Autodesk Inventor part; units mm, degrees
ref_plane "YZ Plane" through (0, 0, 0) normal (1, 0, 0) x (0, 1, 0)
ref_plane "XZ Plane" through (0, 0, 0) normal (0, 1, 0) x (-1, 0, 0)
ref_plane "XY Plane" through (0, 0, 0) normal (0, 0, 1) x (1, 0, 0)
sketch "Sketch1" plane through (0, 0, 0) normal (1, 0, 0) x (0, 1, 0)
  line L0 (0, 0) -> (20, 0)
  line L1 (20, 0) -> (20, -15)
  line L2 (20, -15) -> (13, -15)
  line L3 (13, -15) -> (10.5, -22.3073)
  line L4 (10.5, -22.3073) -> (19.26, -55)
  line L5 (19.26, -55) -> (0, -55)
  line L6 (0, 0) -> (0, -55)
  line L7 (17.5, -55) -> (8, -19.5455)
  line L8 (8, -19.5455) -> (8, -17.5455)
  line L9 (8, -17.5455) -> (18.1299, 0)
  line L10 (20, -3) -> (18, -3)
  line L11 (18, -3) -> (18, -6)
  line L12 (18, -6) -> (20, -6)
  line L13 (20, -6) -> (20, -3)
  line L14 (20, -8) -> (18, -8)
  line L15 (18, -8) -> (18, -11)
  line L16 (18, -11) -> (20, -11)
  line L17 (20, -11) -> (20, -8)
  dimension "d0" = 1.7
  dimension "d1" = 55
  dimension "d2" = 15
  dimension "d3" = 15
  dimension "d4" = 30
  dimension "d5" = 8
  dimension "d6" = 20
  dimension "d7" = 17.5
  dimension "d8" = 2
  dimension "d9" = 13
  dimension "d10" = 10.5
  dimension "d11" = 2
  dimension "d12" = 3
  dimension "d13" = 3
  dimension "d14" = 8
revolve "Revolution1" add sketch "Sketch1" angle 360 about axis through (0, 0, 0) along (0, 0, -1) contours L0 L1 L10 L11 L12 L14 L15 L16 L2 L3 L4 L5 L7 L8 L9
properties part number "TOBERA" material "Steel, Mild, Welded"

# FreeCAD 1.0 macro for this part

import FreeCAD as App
import Part
import Sketcher

V = App.Vector
Q = App.Units.Quantity

doc = App.newDocument("Part")
body = doc.addObject("PartDesign::Body", "Body")

# Sketch on YZ plane
sketch1 = doc.addObject("Sketcher::SketchObject", "Sketch")
body.addObject(sketch1)
sketch1.AttachmentSupport = (doc.YZ_Plane, [""])
sketch1.MapMode = "FlatFace"
sketch1.addGeometry([
    Part.LineSegment(V(20, 0, 0), V(18.1299, 0, 0)),  # 0
    Part.LineSegment(V(18.1299, 0, 0), V(8, -17.5455, 0)),  # 1
    Part.LineSegment(V(8, -17.5455, 0), V(8, -19.5455, 0)),  # 2
    Part.LineSegment(V(8, -19.5455, 0), V(17.5, -55, 0)),  # 3
    Part.LineSegment(V(17.5, -55, 0), V(19.26, -55, 0)),  # 4
    Part.LineSegment(V(19.26, -55, 0), V(10.5, -22.3073, 0)),  # 5
    Part.LineSegment(V(10.5, -22.3073, 0), V(13, -15, 0)),  # 6
    Part.LineSegment(V(13, -15, 0), V(20, -15, 0)),  # 7
    Part.LineSegment(V(20, -15, 0), V(20, -11, 0)),  # 8
    Part.LineSegment(V(20, -11, 0), V(18, -11, 0)),  # 9
    Part.LineSegment(V(18, -11, 0), V(18, -8, 0)),  # 10
    Part.LineSegment(V(18, -8, 0), V(20, -8, 0)),  # 11
    Part.LineSegment(V(20, -8, 0), V(20, -6, 0)),  # 12
    Part.LineSegment(V(20, -6, 0), V(18, -6, 0)),  # 13
    Part.LineSegment(V(18, -6, 0), V(18, -3, 0)),  # 14
    Part.LineSegment(V(18, -3, 0), V(20, -3, 0)),  # 15
    Part.LineSegment(V(20, -3, 0), V(20, 0, 0)),  # 16
], False)
sketch1.addConstraint([
    Sketcher.Constraint("Coincident", 0, 2, 1, 1),
    Sketcher.Constraint("Coincident", 1, 2, 2, 1),
    Sketcher.Constraint("Coincident", 2, 2, 3, 1),
    Sketcher.Constraint("Coincident", 3, 2, 4, 1),
    Sketcher.Constraint("Coincident", 4, 2, 5, 1),
    Sketcher.Constraint("Coincident", 5, 2, 6, 1),
    Sketcher.Constraint("Coincident", 6, 2, 7, 1),
    Sketcher.Constraint("Coincident", 7, 2, 8, 1),
    Sketcher.Constraint("Coincident", 8, 2, 9, 1),
    Sketcher.Constraint("Coincident", 9, 2, 10, 1),
    Sketcher.Constraint("Coincident", 10, 2, 11, 1),
    Sketcher.Constraint("Coincident", 11, 2, 12, 1),
    Sketcher.Constraint("Coincident", 12, 2, 13, 1),
    Sketcher.Constraint("Coincident", 13, 2, 14, 1),
    Sketcher.Constraint("Coincident", 14, 2, 15, 1),
    Sketcher.Constraint("Coincident", 15, 2, 16, 1),
    Sketcher.Constraint("Coincident", 16, 2, 0, 1),
    Sketcher.Constraint("Horizontal", 0),
    Sketcher.Constraint("Vertical", 2),
    Sketcher.Constraint("Horizontal", 4),
    Sketcher.Constraint("Horizontal", 7),
    Sketcher.Constraint("Vertical", 8),
    Sketcher.Constraint("Horizontal", 9),
    Sketcher.Constraint("Vertical", 10),
    Sketcher.Constraint("Horizontal", 11),
    Sketcher.Constraint("Vertical", 12),
    Sketcher.Constraint("Horizontal", 13),
    Sketcher.Constraint("Vertical", 14),
    Sketcher.Constraint("Horizontal", 15),
    Sketcher.Constraint("Vertical", 16),
    Sketcher.Constraint("PointOnObject", 0, 2, -1),
    Sketcher.Constraint("Parallel", 3, 5),
    Sketcher.Constraint("Vertical", 8, 2, 11, 2),
    Sketcher.Constraint("Vertical", 10, 2, 13, 2),
    Sketcher.Constraint("Vertical", 12, 2, 15, 2),
    Sketcher.Constraint("Equal", 15, 2),
    Sketcher.Constraint("Equal", 2, 12),
    Sketcher.Constraint("Equal", 10, 14),
    Sketcher.Constraint("Equal", 14, 16),
    Sketcher.Constraint("DistanceX", 9, 2, 9, 1, 2.0),
    Sketcher.Constraint("DistanceY", 10, 1, 10, 2, 3.0),
    Sketcher.Constraint("DistanceX", -1, 1, 1, 2, 8.0),
    Sketcher.Constraint("DistanceY", 3, 2, -1, 1, 55.0),
    Sketcher.Constraint("DistanceX", -1, 1, 6, 2, 13.0),
    Sketcher.Constraint("DistanceY", 6, 2, -1, 1, 15.0),
    Sketcher.Constraint("DistanceX", -1, 1, 7, 2, 20.0),
    Sketcher.Constraint("DistanceX", -1, 1, 3, 2, 17.5),
    Sketcher.Constraint("DistanceX", -1, 1, 5, 2, 10.5),
    Sketcher.Constraint("Angle", 1, Q("-120 deg")),
    Sketcher.Constraint("Angle", 3, Q("-75 deg")),
    Sketcher.Constraint("DistanceX", 4, 1, 4, 2, 1.76),
])
revolution = doc.addObject("PartDesign::Revolution", "Revolution")
body.addObject(revolution)
revolution.Profile = sketch1
revolution.ReferenceAxis = (sketch1, ["V_Axis"])
revolution.Angle = 360

doc.recompute()
